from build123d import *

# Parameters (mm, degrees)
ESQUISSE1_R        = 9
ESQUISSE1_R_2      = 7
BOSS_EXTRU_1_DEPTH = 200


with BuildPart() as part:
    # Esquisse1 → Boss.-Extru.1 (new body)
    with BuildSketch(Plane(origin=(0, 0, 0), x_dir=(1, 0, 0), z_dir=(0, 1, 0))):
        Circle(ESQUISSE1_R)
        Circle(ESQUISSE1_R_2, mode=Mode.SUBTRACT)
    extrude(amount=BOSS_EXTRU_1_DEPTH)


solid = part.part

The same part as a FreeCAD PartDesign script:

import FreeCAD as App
import Part
import Sketcher

V = App.Vector

doc = App.newDocument("Part")
body = doc.addObject("PartDesign::Body", "Body")

# Sketch on XZ plane
sketch1 = body.newObject("Sketcher::SketchObject", "Sketch")
sketch1.AttachmentSupport = (doc.getObject("XZ_Plane"), [""])
sketch1.MapMode = "FlatFace"
sketch1.addGeometry(Part.Circle(V(0, 0, 0), V(0, 0, 1), 9), False)
sketch1.addGeometry(Part.Circle(V(0, 0, 0), V(0, 0, 1), 7), False)
sketch1.addConstraint(Sketcher.Constraint("Coincident", 0, 3, -1, 1))
sketch1.addConstraint(Sketcher.Constraint("Coincident", 1, 3, -1, 1))
sketch1.addConstraint(Sketcher.Constraint("Diameter", 0, 18.0))
sketch1.addConstraint(Sketcher.Constraint("Diameter", 1, 14.0))
pad1 = body.newObject("PartDesign::Pad", "Pad")
pad1.Profile = sketch1
pad1.Length = 200
pad1.Reversed = True

doc.recompute()
